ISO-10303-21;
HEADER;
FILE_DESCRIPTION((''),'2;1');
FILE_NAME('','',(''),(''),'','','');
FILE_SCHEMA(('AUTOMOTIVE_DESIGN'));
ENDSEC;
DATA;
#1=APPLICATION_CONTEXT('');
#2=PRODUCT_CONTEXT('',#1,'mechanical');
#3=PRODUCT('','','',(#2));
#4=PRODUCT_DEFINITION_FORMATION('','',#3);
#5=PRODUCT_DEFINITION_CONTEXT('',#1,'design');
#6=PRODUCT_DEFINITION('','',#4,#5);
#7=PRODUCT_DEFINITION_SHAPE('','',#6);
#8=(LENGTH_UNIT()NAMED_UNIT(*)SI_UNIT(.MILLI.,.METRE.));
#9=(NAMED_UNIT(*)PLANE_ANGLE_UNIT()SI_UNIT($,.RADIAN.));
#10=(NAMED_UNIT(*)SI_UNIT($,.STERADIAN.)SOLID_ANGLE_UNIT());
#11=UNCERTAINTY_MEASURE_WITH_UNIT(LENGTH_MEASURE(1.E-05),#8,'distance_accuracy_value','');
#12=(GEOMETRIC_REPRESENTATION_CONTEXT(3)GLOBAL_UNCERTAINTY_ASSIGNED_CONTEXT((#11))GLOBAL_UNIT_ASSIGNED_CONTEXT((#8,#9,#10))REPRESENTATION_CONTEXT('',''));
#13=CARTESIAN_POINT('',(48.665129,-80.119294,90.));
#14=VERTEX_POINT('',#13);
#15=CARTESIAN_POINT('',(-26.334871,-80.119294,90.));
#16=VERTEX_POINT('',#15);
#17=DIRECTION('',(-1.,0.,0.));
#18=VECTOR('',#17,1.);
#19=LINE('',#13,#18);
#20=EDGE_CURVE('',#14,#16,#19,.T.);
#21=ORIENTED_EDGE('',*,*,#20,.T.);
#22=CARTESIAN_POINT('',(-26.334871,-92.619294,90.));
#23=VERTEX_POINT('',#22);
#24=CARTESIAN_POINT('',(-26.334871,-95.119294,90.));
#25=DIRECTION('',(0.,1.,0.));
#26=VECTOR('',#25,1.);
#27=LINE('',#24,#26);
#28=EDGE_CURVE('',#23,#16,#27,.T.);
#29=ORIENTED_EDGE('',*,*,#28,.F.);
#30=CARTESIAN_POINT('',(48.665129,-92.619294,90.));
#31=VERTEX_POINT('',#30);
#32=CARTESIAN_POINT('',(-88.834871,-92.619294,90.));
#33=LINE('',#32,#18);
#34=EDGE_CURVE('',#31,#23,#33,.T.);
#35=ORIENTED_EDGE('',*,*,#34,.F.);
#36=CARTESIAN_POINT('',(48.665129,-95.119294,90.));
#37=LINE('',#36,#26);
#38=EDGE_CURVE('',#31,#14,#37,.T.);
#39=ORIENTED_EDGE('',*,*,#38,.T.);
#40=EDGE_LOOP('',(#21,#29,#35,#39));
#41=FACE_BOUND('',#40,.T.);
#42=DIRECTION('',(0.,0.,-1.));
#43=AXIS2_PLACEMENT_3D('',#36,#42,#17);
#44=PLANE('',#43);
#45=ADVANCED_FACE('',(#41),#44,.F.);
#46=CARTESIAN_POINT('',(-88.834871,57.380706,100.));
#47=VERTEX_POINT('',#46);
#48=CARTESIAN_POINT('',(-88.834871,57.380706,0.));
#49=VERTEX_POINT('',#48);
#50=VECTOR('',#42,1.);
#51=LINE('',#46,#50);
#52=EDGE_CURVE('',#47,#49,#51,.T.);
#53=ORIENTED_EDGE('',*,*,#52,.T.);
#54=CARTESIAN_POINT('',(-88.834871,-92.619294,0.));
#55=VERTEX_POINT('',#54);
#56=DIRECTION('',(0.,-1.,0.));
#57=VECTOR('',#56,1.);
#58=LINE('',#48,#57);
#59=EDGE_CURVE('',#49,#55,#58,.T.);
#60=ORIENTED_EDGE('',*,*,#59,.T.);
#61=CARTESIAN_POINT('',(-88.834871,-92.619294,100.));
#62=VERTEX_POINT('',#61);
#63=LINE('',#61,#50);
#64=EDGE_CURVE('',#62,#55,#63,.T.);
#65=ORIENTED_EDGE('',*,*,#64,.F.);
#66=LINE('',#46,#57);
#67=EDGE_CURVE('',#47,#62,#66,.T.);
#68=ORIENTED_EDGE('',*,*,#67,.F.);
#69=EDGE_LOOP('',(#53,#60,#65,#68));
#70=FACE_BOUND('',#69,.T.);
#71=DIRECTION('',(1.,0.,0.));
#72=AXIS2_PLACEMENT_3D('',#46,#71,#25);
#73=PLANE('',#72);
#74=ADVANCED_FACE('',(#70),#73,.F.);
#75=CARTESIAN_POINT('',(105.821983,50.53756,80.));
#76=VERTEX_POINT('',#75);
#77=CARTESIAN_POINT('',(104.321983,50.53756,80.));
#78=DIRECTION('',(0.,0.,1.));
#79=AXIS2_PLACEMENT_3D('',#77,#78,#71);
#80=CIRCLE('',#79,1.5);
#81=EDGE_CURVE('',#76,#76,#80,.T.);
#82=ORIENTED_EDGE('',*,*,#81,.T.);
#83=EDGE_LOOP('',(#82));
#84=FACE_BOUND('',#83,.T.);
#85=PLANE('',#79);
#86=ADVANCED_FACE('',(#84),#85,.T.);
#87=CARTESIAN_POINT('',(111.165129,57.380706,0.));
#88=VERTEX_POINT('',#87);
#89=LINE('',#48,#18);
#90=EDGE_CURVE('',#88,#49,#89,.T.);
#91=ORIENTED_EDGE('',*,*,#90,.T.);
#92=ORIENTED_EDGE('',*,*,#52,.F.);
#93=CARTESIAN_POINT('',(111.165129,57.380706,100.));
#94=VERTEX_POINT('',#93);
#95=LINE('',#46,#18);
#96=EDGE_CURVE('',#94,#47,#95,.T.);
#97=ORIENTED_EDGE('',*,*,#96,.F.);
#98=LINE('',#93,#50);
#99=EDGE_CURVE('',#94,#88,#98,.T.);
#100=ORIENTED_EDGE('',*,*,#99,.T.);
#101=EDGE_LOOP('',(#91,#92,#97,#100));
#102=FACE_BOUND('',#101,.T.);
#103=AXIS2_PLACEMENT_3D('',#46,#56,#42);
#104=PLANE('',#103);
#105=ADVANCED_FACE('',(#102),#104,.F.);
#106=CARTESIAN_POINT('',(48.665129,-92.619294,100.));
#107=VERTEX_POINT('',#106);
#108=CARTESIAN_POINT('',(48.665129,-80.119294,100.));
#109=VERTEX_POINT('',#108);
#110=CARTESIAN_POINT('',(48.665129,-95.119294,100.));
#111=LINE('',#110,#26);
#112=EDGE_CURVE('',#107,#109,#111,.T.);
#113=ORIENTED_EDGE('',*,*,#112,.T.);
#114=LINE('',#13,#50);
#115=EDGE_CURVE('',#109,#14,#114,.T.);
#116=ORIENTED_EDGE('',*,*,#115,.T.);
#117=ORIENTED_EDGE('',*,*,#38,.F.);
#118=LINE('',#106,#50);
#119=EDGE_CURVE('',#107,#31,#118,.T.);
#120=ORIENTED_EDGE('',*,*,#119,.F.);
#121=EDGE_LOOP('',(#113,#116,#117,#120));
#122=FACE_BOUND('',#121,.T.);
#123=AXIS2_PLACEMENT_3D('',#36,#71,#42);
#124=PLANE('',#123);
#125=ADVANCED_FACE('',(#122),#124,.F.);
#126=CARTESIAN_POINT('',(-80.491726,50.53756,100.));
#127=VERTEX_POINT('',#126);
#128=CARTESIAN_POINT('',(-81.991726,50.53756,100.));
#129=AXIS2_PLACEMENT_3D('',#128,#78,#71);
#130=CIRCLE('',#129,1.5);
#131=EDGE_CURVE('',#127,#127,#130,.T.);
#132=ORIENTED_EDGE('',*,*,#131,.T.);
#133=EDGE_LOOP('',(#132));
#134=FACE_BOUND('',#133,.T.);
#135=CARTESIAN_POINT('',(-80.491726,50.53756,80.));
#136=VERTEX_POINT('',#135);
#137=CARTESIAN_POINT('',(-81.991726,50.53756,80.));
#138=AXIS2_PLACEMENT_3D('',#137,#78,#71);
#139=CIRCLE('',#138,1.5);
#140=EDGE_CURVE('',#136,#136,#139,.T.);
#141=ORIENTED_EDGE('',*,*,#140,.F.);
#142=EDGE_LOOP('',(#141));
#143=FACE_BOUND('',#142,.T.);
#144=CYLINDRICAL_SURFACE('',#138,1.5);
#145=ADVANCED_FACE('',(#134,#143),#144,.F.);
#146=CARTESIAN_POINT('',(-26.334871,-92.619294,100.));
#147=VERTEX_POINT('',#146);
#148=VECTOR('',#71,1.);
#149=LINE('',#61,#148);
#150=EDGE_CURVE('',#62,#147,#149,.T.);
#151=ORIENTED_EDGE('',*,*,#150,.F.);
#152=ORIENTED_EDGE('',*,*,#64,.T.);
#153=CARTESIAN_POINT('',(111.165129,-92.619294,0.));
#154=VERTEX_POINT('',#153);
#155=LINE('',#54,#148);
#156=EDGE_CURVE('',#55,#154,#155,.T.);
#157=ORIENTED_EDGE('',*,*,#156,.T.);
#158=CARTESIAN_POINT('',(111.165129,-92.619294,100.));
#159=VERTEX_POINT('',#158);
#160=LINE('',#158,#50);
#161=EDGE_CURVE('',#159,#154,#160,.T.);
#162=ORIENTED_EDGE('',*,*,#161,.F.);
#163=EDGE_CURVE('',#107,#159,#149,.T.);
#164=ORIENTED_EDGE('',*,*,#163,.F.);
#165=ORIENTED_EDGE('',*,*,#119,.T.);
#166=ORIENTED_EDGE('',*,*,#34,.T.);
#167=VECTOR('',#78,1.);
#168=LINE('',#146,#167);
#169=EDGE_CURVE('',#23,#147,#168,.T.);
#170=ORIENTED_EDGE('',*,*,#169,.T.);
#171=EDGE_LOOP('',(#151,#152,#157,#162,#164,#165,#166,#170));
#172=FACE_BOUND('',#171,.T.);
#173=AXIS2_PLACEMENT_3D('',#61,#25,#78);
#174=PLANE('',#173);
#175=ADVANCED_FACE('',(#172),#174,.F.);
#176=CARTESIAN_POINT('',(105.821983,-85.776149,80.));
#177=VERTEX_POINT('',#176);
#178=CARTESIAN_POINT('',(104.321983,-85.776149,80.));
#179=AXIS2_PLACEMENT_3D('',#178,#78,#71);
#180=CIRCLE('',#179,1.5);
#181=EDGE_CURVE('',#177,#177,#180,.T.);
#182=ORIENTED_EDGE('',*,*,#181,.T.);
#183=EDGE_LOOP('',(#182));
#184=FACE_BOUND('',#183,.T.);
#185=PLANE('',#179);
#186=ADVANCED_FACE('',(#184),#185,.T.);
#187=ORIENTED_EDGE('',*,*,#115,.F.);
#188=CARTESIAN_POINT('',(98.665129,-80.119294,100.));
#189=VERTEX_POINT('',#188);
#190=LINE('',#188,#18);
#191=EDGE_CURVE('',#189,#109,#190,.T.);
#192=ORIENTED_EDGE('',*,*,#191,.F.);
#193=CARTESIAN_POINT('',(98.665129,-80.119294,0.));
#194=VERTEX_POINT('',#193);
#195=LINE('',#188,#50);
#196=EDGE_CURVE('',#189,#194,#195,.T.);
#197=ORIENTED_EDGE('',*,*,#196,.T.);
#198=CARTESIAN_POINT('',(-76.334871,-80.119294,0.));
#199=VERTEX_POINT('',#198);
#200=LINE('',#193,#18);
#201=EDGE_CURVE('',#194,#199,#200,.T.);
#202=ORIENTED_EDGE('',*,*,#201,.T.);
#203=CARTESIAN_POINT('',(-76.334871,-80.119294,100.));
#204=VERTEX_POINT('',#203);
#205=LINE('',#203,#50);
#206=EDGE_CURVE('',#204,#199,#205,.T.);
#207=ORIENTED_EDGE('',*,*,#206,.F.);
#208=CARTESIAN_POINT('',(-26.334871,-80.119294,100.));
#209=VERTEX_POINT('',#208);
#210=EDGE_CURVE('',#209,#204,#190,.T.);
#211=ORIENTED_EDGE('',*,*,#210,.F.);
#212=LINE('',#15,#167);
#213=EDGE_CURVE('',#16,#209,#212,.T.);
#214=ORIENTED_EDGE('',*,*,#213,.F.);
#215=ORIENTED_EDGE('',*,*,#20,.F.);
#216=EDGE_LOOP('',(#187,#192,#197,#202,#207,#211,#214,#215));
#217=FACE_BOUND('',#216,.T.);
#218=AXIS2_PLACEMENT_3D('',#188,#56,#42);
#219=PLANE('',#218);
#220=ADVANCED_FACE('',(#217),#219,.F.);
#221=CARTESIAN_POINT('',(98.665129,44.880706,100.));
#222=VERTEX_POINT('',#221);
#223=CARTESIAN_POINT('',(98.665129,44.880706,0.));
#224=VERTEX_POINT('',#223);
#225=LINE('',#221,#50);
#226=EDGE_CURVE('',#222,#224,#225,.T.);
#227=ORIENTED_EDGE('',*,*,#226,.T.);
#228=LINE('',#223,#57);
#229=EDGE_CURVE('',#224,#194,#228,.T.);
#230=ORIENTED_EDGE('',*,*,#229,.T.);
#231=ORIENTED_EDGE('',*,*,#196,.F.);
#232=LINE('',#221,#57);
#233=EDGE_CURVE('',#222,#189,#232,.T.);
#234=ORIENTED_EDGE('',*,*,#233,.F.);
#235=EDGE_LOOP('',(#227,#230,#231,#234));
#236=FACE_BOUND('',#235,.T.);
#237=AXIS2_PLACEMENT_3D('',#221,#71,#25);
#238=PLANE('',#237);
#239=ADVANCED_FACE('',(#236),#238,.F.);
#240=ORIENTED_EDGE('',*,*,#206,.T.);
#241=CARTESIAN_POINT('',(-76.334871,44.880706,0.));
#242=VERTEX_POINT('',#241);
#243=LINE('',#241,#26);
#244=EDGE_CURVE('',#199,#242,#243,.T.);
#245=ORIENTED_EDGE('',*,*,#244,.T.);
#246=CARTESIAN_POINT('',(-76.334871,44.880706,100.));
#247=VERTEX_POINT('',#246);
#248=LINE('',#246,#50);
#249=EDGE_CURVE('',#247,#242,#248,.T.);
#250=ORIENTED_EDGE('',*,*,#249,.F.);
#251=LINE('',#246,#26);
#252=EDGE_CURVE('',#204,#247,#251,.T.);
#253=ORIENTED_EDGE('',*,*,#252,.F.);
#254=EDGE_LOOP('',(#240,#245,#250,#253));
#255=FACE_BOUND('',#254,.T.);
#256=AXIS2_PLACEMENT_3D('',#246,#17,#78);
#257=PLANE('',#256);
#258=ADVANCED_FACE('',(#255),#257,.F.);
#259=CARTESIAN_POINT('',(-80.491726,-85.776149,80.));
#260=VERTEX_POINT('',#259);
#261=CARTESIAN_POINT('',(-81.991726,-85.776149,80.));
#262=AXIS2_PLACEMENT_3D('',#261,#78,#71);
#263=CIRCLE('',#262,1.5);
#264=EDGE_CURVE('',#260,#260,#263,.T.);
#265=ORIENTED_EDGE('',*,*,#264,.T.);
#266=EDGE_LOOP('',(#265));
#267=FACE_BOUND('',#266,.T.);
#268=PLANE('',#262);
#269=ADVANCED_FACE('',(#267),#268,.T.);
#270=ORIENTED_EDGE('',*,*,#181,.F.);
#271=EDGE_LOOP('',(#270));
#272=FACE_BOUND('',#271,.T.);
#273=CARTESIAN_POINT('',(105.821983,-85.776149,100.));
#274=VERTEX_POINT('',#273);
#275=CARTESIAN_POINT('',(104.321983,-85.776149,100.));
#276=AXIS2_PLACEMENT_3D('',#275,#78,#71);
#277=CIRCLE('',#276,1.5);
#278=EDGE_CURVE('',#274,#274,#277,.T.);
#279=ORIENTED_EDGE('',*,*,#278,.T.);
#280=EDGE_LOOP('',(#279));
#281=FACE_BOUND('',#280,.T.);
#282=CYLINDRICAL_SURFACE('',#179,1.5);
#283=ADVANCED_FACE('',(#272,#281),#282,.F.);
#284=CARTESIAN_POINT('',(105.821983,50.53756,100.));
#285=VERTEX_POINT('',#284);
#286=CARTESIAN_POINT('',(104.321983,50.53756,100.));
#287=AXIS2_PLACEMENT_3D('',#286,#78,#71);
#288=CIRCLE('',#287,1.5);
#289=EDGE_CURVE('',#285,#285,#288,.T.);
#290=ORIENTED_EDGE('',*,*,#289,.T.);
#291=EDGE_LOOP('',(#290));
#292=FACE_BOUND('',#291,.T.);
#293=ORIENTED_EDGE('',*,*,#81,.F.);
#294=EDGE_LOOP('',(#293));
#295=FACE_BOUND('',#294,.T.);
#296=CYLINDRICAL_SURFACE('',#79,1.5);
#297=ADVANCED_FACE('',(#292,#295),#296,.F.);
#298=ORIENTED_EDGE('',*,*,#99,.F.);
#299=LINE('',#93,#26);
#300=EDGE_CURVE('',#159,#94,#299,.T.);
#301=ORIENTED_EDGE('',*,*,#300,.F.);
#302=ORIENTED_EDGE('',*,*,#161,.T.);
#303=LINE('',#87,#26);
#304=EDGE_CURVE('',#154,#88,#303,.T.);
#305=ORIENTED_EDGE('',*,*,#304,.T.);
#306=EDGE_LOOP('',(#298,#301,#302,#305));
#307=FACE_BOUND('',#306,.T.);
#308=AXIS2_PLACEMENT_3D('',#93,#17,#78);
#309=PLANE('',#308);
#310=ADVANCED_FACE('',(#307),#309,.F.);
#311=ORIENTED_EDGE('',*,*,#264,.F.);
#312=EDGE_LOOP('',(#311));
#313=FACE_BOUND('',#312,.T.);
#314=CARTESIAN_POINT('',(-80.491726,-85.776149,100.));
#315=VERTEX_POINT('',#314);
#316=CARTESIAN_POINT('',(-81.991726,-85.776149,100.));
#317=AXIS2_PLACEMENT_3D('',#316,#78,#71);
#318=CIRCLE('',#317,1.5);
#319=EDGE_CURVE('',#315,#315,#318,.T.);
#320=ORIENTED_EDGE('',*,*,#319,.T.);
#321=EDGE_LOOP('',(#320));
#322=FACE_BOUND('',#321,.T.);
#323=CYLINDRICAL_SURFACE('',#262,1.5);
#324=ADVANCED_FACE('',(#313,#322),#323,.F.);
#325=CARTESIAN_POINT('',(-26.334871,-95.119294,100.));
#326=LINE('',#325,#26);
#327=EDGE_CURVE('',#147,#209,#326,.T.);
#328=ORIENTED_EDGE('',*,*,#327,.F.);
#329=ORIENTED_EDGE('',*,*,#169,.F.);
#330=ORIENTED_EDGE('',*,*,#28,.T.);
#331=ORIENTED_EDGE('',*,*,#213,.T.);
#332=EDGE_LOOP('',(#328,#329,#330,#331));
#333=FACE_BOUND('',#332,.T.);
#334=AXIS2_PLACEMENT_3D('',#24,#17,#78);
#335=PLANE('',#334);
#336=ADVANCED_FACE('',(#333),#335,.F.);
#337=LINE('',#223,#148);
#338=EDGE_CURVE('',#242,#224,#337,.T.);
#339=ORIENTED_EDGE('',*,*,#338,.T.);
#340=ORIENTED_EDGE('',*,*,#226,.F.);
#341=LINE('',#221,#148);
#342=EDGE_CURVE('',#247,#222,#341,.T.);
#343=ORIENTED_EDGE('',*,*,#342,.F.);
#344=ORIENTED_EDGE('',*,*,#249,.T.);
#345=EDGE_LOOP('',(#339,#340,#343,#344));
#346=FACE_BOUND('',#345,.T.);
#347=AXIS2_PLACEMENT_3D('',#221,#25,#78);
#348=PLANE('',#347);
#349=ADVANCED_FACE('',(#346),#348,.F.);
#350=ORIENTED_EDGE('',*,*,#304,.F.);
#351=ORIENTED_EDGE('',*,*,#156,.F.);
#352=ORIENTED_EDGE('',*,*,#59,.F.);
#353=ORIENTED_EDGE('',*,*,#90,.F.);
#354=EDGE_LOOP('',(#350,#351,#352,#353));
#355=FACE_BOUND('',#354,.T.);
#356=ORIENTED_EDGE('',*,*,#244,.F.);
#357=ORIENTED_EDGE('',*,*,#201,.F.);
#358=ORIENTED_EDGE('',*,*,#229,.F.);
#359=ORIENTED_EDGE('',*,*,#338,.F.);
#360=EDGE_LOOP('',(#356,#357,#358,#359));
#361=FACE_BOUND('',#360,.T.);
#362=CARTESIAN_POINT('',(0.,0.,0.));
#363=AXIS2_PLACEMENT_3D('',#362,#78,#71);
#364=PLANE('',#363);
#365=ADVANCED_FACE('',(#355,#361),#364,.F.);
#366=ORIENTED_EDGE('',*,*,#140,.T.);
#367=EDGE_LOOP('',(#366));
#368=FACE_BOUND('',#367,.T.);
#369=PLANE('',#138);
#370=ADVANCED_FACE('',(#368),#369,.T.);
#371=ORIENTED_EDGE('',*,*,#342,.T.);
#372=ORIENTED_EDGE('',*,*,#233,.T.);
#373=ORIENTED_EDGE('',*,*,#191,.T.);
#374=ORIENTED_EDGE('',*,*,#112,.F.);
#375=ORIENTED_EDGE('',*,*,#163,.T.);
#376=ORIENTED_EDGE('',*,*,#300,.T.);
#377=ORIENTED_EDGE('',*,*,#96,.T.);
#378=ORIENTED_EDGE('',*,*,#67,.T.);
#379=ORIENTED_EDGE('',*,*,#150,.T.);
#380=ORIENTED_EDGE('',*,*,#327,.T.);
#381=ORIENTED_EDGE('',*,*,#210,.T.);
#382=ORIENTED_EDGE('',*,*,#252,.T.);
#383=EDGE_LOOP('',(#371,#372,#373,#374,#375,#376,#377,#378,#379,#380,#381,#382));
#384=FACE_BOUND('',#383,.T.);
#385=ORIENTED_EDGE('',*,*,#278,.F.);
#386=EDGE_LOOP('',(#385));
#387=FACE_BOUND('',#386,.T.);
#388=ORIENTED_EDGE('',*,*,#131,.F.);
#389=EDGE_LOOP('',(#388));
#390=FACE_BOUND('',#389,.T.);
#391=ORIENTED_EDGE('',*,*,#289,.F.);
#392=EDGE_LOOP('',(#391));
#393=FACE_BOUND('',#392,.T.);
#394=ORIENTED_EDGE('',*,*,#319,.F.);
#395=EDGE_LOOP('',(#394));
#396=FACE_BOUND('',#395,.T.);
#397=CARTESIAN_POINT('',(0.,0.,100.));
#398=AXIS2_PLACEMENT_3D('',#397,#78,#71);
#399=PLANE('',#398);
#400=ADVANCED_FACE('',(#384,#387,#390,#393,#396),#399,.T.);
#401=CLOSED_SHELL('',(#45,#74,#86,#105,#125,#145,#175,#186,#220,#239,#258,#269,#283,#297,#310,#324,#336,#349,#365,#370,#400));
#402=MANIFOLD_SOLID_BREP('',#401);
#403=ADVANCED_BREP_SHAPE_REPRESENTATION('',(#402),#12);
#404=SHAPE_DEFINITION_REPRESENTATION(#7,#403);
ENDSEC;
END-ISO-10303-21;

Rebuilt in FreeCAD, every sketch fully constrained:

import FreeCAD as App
import Part
import Sketcher

V = App.Vector
Q = App.Units.Quantity

doc = App.newDocument("Part")
body = doc.addObject("PartDesign::Body", "Body")

sketch1 = body.newObject("Sketcher::SketchObject", "Sketch")
sketch1.AttachmentSupport = (doc.getObject("XY_Plane"), [""])
sketch1.MapMode = "FlatFace"
sketch1.addGeometry([
    Part.LineSegment(V(-89, 57, 0), V(-89, -93, 0)),
    Part.LineSegment(V(-89, -93, 0), V(111, -93, 0)),
    Part.LineSegment(V(111, -93, 0), V(111, 57, 0)),
    Part.LineSegment(V(111, 57, 0), V(-89, 57, 0)),
], False)
sketch1.addConstraint([
    Sketcher.Constraint("Coincident", 0, 2, 1, 1),
    Sketcher.Constraint("Coincident", 1, 2, 2, 1),
    Sketcher.Constraint("Coincident", 2, 2, 3, 1),
    Sketcher.Constraint("Coincident", 3, 2, 0, 1),
    Sketcher.Constraint("Vertical", 0),
    Sketcher.Constraint("Horizontal", 1),
    Sketcher.Constraint("Vertical", 2),
    Sketcher.Constraint("Horizontal", 3),
    Sketcher.Constraint("DistanceX", 1, 1, 1, 2, Q("200 mm")),
    Sketcher.Constraint("DistanceY", 0, 2, 0, 1, Q("150 mm")),
    Sketcher.Constraint("DistanceX", 0, 2, -1, 1, Q("88.834871 mm")),
    Sketcher.Constraint("DistanceY", 0, 2, -1, 1, Q("92.619294 mm")),
])
pad1 = body.newObject("PartDesign::Pad", "Pad")
pad1.Profile = sketch1
pad1.Length = 100

sketch2 = body.newObject("Sketcher::SketchObject", "Sketch001")
sketch2.AttachmentSupport = (doc.getObject("XY_Plane"), [""])
sketch2.MapMode = "FlatFace"
sketch2.addGeometry([
    Part.LineSegment(V(99, 45, 0), V(99, -80, 0)),
    Part.LineSegment(V(99, -80, 0), V(-76, -80, 0)),
    Part.LineSegment(V(-76, -80, 0), V(-76, 45, 0)),
    Part.LineSegment(V(-76, 45, 0), V(99, 45, 0)),
], False)
sketch2.addConstraint([
    Sketcher.Constraint("Coincident", 0, 2, 1, 1),
    Sketcher.Constraint("Coincident", 1, 2, 2, 1),
    Sketcher.Constraint("Coincident", 2, 2, 3, 1),
    Sketcher.Constraint("Coincident", 3, 2, 0, 1),
    Sketcher.Constraint("Vertical", 0),
    Sketcher.Constraint("Horizontal", 1),
    Sketcher.Constraint("Vertical", 2),
    Sketcher.Constraint("Horizontal", 3),
    Sketcher.Constraint("DistanceX", 1, 2, 1, 1, Q("175 mm")),
    Sketcher.Constraint("DistanceY", 0, 2, 0, 1, Q("125 mm")),
    Sketcher.Constraint("DistanceX", -1, 1, 0, 2, Q("98.665129 mm")),
    Sketcher.Constraint("DistanceY", 0, 2, -1, 1, Q("80.119294 mm")),
])
pocket1 = body.newObject("PartDesign::Pocket", "Pocket")
pocket1.Profile = sketch2
pocket1.Length = 100
pocket1.Reversed = True

sketch3 = body.newObject("Sketcher::SketchObject", "Sketch002")
sketch3.AttachmentSupport = (doc.getObject("XZ_Plane"), [""])
sketch3.MapMode = "FlatFace"
sketch3.AttachmentOffset = App.Placement(V(0, 0, 80.119294), App.Rotation())
sketch3.addGeometry([
    Part.LineSegment(V(-26, 90, 0), V(-26, 100, 0)),
    Part.LineSegment(V(-26, 100, 0), V(49, 100, 0)),
    Part.LineSegment(V(49, 100, 0), V(49, 90, 0)),
    Part.LineSegment(V(49, 90, 0), V(-26, 90, 0)),
], False)
sketch3.addConstraint([
    Sketcher.Constraint("Coincident", 0, 2, 1, 1),
    Sketcher.Constraint("Coincident", 1, 2, 2, 1),
    Sketcher.Constraint("Coincident", 2, 2, 3, 1),
    Sketcher.Constraint("Coincident", 3, 2, 0, 1),
    Sketcher.Constraint("Vertical", 0),
    Sketcher.Constraint("Horizontal", 1),
    Sketcher.Constraint("Vertical", 2),
    Sketcher.Constraint("Horizontal", 3),
    Sketcher.Constraint("DistanceX", 1, 1, 1, 2, Q("75 mm")),
    Sketcher.Constraint("DistanceY", 0, 1, 0, 2, Q("10 mm")),
    Sketcher.Constraint("DistanceY", -1, 1, 0, 2, Q("100 mm")),
    Sketcher.Constraint("DistanceX", 0, 2, -1, 1, Q("26.334871 mm")),
])
pocket2 = body.newObject("PartDesign::Pocket", "Pocket001")
pocket2.Profile = sketch3
pocket2.Length = 15
pocket2.Reversed = True

sketch4 = body.newObject("Sketcher::SketchObject", "Sketch003")
sketch4.AttachmentSupport = (doc.getObject("XY_Plane"), [""])
sketch4.MapMode = "FlatFace"
sketch4.AttachmentOffset = App.Placement(V(0, 0, 100), App.Rotation())
sketch4.addGeometry([
    Part.Circle(V(-82, 50.5, 0), V(0, 0, 1), 1.5),
    Part.Circle(V(-82, -85.8, 0), V(0, 0, 1), 1.5),
    Part.Circle(V(104.3, 50.5, 0), V(0, 0, 1), 1.5),
    Part.Circle(V(104.3, -85.8, 0), V(0, 0, 1), 1.5),
], False)
sketch4.addConstraint([
    Sketcher.Constraint("Equal", 0, 1),
    Sketcher.Constraint("Equal", 1, 2),
    Sketcher.Constraint("Equal", 2, 3),
    Sketcher.Constraint("Horizontal", 0, 3, 2, 3),
    Sketcher.Constraint("Horizontal", 1, 3, 3, 3),
    Sketcher.Constraint("Vertical", 0, 3, 1, 3),
    Sketcher.Constraint("Vertical", 2, 3, 3, 3),
    Sketcher.Constraint("Diameter", 0, Q("3 mm")),
    Sketcher.Constraint("DistanceY", -1, 1, 0, 3, Q("50.53756 mm")),
    Sketcher.Constraint("DistanceY", 1, 3, -1, 1, Q("85.776149 mm")),
    Sketcher.Constraint("DistanceX", 0, 3, 2, 3, Q("186.313708 mm")),
    Sketcher.Constraint("DistanceX", 0, 3, -1, 1, Q("81.991726 mm")),
])
pocket3 = body.newObject("PartDesign::Pocket", "Pocket002")
pocket3.Profile = sketch4
pocket3.Length = 20

doc.recompute()
